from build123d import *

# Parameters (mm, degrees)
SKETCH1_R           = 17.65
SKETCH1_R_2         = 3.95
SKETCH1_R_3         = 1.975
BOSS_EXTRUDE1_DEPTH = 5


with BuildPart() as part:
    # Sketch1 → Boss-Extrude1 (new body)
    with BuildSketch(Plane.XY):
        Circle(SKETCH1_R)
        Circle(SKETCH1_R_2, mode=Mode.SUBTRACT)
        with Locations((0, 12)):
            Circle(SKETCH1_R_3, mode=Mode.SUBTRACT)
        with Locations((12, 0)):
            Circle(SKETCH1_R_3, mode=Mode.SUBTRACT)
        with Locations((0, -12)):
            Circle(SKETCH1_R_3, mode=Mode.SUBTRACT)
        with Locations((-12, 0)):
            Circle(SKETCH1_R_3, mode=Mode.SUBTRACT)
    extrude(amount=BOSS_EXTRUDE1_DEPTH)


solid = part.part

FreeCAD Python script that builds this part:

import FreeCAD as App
import Part
import Sketcher

V = App.Vector

doc = App.newDocument("Part")
body = doc.addObject("PartDesign::Body", "Body")

sketch1 = body.newObject("Sketcher::SketchObject", "Sketch")
sketch1.AttachmentSupport = (doc.getObject("XY_Plane"), [""])
sketch1.MapMode = "FlatFace"
sketch1.addGeometry(Part.Circle(V(0, 0, 0), V(0, 0, 1), 17.6), False)
sketch1.addGeometry(Part.Circle(V(0, -12, 0), V(0, 0, 1), 2), False)
sketch1.addGeometry(Part.Circle(V(-12, 0, 0), V(0, 0, 1), 2), False)
sketch1.addGeometry(Part.Circle(V(0, 0, 0), V(0, 0, 1), 4), False)
sketch1.addGeometry(Part.Circle(V(12, 0, 0), V(0, 0, 1), 2), False)
sketch1.addGeometry(Part.Circle(V(0, 12, 0), V(0, 0, 1), 2), False)
sketch1.addConstraint(Sketcher.Constraint("Coincident", 0, 3, -1, 1))
sketch1.addConstraint(Sketcher.Constraint("Coincident", 3, 3, -1, 1))
sketch1.addConstraint(Sketcher.Constraint("Equal", 1, 2))
sketch1.addConstraint(Sketcher.Constraint("Equal", 2, 4))
sketch1.addConstraint(Sketcher.Constraint("Equal", 4, 5))
sketch1.addConstraint(Sketcher.Constraint("Symmetric", 2, 3, 4, 3, -1, 1))
sketch1.addConstraint(Sketcher.Constraint("Symmetric", 1, 3, 5, 3, -1, 1))
sketch1.addConstraint(Sketcher.Constraint("PointOnObject", 1, 3, -2))
sketch1.addConstraint(Sketcher.Constraint("PointOnObject", 2, 3, -1))
sketch1.addConstraint(Sketcher.Constraint("Diameter", 0, 35.3))
sketch1.addConstraint(Sketcher.Constraint("Diameter", 3, 7.9))
sketch1.addConstraint(Sketcher.Constraint("Diameter", 1, 3.95))
sketch1.addConstraint(Sketcher.Constraint("DistanceY", 1, 3, -1, 1, 12.0))
sketch1.addConstraint(Sketcher.Constraint("DistanceX", 2, 3, -1, 1, 12.0))
pad1 = body.newObject("PartDesign::Pad", "Pad")
pad1.Profile = sketch1
pad1.Length = 5

doc.recompute()
